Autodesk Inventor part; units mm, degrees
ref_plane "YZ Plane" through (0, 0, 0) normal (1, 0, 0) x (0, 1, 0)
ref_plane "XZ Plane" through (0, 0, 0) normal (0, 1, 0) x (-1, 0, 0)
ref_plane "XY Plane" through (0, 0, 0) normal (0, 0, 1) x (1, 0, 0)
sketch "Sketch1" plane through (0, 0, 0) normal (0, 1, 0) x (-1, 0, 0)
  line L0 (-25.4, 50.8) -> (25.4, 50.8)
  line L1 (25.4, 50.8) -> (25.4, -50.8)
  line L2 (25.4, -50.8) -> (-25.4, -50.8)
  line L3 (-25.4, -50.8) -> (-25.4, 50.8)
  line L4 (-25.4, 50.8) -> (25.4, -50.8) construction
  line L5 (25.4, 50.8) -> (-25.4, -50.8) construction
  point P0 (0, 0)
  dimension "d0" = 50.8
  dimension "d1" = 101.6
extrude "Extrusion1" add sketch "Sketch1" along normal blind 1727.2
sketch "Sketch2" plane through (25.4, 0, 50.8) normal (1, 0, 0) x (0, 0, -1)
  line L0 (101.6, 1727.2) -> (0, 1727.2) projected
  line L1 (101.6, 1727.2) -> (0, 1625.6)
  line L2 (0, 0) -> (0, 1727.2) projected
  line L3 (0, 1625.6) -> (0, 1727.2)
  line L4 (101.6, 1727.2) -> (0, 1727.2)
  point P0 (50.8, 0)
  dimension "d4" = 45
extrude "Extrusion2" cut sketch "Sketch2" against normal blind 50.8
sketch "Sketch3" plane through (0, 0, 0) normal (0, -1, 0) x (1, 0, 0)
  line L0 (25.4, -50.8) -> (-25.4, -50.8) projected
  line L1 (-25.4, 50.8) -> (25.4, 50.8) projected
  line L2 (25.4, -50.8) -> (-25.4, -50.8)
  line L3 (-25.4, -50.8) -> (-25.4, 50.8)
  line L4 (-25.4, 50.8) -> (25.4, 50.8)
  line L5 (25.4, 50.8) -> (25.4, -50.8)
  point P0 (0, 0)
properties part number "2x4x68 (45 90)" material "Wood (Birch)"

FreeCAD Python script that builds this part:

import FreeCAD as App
import Part
import Sketcher
Q = App.Units.Quantity

doc = App.newDocument("Part")
body = doc.addObject("PartDesign::Body", "Body")

sketch1 = body.newObject("Sketcher::SketchObject", "Sketch")
sketch1.AttachmentSupport = (doc.getObject("XZ_Plane"), [""])
sketch1.MapMode = "FlatFace"
sketch1.addGeometry(Part.LineSegment(App.Vector(-25, 51, 0), App.Vector(25, 51, 0)), False)
sketch1.addGeometry(Part.LineSegment(App.Vector(25, 51, 0), App.Vector(25, -51, 0)), False)
sketch1.addGeometry(Part.LineSegment(App.Vector(25, -51, 0), App.Vector(-25, -51, 0)), False)
sketch1.addGeometry(Part.LineSegment(App.Vector(-25, -51, 0), App.Vector(-25, 51, 0)), False)
sketch1.addConstraint(Sketcher.Constraint("Coincident", 0, 2, 1, 1))
sketch1.addConstraint(Sketcher.Constraint("Coincident", 1, 2, 2, 1))
sketch1.addConstraint(Sketcher.Constraint("Coincident", 2, 2, 3, 1))
sketch1.addConstraint(Sketcher.Constraint("Coincident", 3, 2, 0, 1))
sketch1.addConstraint(Sketcher.Constraint("Horizontal", 0))
sketch1.addConstraint(Sketcher.Constraint("Vertical", 1))
sketch1.addConstraint(Sketcher.Constraint("Horizontal", 2))
sketch1.addConstraint(Sketcher.Constraint("Vertical", 3))
sketch1.addConstraint(Sketcher.Constraint("Symmetric", 0, 2, 2, 2, -1, 1))
sketch1.addConstraint(Sketcher.Constraint("DistanceX", 0, 1, 0, 2, Q("2 in")))
sketch1.addConstraint(Sketcher.Constraint("DistanceY", 1, 2, 1, 1, Q("4 in")))
pad1 = body.newObject("PartDesign::Pad", "Pad")
pad1.Profile = sketch1
pad1.Length = Q("68 in")
pad1.Reversed = True

sketch2 = body.newObject("Sketcher::SketchObject", "Sketch001")
sketch2.AttachmentSupport = (doc.getObject("YZ_Plane"), [""])
sketch2.MapMode = "FlatFace"
sketch2.AttachmentOffset = App.Placement(App.Vector(0, 0, 1 * 25.4), App.Rotation())
sketch2.addGeometry(Part.LineSegment(App.Vector(1626, 51, 0), App.Vector(1727, -51, 0)), False)
sketch2.addGeometry(Part.LineSegment(App.Vector(1727, -51, 0), App.Vector(1727, 51, 0)), False)
sketch2.addGeometry(Part.LineSegment(App.Vector(1727, 51, 0), App.Vector(1626, 51, 0)), False)
sketch2.addConstraint(Sketcher.Constraint("Coincident", 0, 2, 1, 1))
sketch2.addConstraint(Sketcher.Constraint("Coincident", 1, 2, 2, 1))
sketch2.addConstraint(Sketcher.Constraint("Coincident", 2, 2, 0, 1))
sketch2.addConstraint(Sketcher.Constraint("Vertical", 1))
sketch2.addConstraint(Sketcher.Constraint("Horizontal", 2))
sketch2.addConstraint(Sketcher.Constraint("Equal", 2, 1))
sketch2.addConstraint(Sketcher.Constraint("DistanceX", 2, 2, 2, 1, Q("4 in")))
sketch2.addConstraint(Sketcher.Constraint("DistanceX", -1, 1, 0, 2, Q("68 in")))
sketch2.addConstraint(Sketcher.Constraint("DistanceY", 0, 2, -1, 1, Q("2 in")))
pocket1 = body.newObject("PartDesign::Pocket", "Pocket")
pocket1.Profile = sketch2
pocket1.Length = Q("2 in")

doc.recompute()
